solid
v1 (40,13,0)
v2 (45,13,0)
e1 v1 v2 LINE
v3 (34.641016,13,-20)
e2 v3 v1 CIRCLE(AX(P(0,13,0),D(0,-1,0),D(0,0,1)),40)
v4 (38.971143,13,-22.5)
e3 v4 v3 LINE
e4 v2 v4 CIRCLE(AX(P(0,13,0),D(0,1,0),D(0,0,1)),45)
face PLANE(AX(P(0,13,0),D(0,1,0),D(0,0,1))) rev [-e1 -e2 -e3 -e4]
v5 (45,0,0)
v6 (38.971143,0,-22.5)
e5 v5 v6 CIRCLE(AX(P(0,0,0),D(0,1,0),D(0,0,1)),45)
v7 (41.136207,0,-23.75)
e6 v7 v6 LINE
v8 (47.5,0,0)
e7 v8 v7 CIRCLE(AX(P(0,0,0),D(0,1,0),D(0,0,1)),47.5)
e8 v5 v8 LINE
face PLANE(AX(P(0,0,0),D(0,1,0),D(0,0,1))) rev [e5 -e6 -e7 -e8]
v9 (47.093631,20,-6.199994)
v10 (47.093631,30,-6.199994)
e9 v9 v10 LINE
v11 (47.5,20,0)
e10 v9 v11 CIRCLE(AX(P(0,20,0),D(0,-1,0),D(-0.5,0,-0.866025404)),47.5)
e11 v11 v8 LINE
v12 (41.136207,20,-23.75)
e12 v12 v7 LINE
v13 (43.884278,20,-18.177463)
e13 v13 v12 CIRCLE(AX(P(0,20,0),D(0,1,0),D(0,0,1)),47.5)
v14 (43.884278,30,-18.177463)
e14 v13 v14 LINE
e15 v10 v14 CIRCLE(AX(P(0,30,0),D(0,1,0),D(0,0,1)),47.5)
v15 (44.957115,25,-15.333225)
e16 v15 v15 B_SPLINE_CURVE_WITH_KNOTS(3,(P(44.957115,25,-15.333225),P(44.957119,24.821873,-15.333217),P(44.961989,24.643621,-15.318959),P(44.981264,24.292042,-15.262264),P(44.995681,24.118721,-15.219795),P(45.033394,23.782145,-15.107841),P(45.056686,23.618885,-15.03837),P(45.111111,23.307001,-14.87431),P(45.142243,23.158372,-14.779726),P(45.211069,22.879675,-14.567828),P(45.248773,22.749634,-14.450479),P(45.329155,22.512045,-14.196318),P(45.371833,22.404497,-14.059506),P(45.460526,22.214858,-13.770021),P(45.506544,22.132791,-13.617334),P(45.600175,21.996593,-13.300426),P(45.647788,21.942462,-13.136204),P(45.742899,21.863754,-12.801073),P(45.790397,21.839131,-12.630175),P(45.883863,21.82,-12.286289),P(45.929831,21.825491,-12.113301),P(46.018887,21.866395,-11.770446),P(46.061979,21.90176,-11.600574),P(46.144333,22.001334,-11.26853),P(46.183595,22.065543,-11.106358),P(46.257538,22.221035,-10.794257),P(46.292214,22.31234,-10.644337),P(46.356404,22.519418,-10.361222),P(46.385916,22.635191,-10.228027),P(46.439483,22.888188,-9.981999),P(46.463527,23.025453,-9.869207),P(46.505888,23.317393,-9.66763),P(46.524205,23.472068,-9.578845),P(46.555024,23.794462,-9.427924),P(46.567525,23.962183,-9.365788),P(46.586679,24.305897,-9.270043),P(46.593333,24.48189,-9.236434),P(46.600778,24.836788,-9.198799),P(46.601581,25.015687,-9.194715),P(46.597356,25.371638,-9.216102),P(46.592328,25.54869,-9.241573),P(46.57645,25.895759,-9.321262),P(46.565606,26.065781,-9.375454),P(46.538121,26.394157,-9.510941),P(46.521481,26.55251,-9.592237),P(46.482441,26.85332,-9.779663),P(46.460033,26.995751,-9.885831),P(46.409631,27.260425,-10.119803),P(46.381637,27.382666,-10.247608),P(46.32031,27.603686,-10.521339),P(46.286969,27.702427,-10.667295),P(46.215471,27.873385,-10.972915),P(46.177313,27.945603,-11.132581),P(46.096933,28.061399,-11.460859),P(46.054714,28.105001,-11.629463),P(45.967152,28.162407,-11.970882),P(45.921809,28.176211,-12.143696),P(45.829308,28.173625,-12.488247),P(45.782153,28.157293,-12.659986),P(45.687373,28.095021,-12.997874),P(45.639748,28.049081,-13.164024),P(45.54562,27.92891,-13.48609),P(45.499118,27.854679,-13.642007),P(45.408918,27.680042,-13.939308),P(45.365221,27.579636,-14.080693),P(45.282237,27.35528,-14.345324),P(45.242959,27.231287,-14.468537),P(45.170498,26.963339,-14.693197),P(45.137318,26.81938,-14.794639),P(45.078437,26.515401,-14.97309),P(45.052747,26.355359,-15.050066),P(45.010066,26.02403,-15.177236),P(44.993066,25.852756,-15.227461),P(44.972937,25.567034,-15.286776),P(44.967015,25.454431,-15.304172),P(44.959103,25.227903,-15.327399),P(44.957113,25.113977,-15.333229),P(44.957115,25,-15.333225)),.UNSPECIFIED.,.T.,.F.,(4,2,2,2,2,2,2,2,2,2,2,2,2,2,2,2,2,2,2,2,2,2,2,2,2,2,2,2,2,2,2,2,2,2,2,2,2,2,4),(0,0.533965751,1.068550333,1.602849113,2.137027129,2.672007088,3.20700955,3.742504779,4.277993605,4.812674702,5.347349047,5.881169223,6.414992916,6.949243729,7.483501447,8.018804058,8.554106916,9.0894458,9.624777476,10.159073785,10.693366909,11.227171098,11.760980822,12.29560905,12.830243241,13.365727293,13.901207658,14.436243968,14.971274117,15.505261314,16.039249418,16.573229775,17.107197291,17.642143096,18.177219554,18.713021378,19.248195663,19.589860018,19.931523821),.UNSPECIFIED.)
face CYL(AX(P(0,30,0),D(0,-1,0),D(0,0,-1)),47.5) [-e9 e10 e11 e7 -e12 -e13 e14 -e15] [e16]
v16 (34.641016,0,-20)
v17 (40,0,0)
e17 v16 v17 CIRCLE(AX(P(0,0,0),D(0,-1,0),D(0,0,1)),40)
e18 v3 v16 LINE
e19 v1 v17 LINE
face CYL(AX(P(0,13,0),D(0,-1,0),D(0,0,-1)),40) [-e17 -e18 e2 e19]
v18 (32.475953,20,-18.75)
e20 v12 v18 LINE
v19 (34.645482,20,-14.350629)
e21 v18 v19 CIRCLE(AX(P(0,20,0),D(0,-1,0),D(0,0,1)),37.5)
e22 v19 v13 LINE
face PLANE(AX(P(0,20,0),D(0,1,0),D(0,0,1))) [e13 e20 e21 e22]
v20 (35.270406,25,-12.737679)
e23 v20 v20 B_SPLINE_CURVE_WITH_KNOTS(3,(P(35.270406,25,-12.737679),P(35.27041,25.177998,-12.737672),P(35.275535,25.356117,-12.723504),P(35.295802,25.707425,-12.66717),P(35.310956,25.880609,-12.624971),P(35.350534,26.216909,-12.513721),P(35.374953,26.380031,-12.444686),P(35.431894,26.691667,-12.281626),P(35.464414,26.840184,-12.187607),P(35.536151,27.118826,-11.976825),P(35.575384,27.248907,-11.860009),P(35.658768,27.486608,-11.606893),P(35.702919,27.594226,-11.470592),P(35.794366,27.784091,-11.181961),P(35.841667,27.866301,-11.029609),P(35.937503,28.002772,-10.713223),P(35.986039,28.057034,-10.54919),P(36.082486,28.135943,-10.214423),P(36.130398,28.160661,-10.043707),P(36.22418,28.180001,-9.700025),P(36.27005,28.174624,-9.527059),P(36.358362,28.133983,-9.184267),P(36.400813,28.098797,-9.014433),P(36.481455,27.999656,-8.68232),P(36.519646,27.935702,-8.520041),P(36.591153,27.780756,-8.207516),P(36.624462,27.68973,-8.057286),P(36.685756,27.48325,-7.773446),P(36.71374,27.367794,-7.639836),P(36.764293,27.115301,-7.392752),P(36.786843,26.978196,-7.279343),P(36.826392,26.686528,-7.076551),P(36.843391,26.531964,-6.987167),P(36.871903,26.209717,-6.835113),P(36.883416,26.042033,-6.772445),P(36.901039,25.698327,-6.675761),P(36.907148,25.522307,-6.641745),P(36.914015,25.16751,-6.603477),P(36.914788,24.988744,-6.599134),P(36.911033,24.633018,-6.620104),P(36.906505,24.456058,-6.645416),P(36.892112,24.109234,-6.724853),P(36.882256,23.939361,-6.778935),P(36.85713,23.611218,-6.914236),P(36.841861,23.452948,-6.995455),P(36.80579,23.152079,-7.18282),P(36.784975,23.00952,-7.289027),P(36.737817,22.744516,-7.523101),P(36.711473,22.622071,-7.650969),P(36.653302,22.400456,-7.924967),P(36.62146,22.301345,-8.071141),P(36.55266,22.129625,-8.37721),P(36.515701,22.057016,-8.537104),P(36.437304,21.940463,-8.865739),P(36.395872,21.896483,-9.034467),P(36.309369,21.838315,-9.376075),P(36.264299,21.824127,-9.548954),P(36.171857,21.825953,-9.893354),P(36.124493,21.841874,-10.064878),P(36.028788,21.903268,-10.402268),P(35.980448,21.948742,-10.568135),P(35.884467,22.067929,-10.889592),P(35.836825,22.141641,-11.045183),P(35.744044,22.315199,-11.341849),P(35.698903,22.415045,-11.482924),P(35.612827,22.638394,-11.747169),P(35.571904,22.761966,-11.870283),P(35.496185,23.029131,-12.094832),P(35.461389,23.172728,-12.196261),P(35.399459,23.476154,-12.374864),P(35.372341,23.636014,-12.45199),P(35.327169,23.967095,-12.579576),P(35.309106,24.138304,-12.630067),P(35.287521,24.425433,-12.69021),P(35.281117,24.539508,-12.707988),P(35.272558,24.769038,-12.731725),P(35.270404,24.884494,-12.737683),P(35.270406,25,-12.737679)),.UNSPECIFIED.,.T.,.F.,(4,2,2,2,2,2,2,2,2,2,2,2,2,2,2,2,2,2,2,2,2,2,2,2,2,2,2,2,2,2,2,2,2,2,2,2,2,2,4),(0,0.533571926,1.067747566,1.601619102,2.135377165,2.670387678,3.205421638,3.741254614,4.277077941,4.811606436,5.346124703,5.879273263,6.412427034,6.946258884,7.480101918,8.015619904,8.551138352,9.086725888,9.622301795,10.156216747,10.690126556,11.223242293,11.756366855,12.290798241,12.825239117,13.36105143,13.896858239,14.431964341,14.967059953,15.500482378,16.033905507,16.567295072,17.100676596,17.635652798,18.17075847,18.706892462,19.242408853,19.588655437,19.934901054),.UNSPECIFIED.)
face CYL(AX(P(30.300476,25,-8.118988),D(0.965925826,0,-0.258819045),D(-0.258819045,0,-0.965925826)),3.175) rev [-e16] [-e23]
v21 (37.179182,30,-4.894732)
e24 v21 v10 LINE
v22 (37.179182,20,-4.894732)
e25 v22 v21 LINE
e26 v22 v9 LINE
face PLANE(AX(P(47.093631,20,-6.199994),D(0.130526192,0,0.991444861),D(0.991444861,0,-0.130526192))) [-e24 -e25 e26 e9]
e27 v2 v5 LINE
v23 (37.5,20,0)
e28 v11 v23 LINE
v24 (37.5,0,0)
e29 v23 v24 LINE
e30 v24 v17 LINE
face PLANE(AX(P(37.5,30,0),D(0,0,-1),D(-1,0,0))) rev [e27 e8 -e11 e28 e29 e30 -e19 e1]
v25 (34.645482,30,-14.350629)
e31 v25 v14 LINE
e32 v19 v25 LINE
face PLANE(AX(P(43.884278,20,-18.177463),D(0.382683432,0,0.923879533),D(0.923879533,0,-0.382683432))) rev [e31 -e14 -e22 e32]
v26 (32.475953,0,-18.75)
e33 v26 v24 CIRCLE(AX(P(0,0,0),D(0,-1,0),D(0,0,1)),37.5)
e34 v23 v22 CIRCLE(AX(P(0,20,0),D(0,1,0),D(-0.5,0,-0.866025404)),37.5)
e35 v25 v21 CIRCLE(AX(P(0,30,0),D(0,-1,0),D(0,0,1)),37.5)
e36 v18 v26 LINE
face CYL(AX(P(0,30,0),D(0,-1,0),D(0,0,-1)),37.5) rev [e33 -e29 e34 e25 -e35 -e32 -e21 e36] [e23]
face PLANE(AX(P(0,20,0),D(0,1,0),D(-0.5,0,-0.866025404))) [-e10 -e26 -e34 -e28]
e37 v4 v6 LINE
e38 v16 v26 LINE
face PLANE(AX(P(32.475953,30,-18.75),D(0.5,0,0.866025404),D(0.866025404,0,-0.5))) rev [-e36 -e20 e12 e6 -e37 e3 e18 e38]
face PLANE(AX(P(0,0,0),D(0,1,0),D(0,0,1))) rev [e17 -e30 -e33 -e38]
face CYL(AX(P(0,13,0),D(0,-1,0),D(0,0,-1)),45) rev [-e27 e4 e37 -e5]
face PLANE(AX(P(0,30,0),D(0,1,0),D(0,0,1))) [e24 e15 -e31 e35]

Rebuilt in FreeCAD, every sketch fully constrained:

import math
import FreeCAD as App
import Part
import Sketcher
Q = App.Units.Quantity

doc = App.newDocument("Part")
body = doc.addObject("PartDesign::Body", "Body")

# Sketch on XZ plane
sketch1 = body.newObject("Sketcher::SketchObject", "Sketch")
sketch1.AttachmentSupport = (doc.getObject("XZ_Plane"), [""])
sketch1.MapMode = "FlatFace"
sketch1.addGeometry([
    Part.LineSegment(App.Vector(38, 0, 0), App.Vector(48, 0, 0)),
    Part.ArcOfCircle(Part.Circle(App.Vector(0, 0, 0), App.Vector(0, 0, 1), 47), math.radians(-30), math.radians(0)),
    Part.LineSegment(App.Vector(41, -24, 0), App.Vector(32, -19, 0)),
    Part.ArcOfCircle(Part.Circle(App.Vector(0, 0, 0), App.Vector(0, 0, 1), 37), math.radians(-30), math.radians(0)),
], False)
sketch1.addConstraint([
    Sketcher.Constraint("Coincident", 0, 2, 1, 2),
    Sketcher.Constraint("Coincident", 1, 1, 2, 1),
    Sketcher.Constraint("Coincident", 2, 2, 3, 1),
    Sketcher.Constraint("Coincident", 3, 2, 0, 1),
    Sketcher.Constraint("Horizontal", 0),
    Sketcher.Constraint("Coincident", 1, 3, -1, 1),
    Sketcher.Constraint("Coincident", 3, 3, -1, 1),
    Sketcher.Constraint("PointOnObject", 0, 2, -1),
    Sketcher.Constraint("Radius", 1, Q("47.5 mm")),
    Sketcher.Constraint("Radius", 3, Q("37.5 mm")),
    Sketcher.Constraint("Angle", 2, Q("150 deg")),
    Sketcher.Constraint("DistanceY", 1, 1, -1, 1, Q("23.75 mm")),
])
pad1 = body.newObject("PartDesign::Pad", "Pad")
pad1.Profile = sketch1
pad1.Length = 30
pad1.Reversed = True

# Sketch on XZ plane
sketch2 = body.newObject("Sketcher::SketchObject", "Sketch001")
sketch2.AttachmentSupport = (doc.getObject("XZ_Plane"), [""])
sketch2.MapMode = "FlatFace"
sketch2.addGeometry([
    Part.LineSegment(App.Vector(39, -22, 0), App.Vector(35, -20, 0)),
    Part.ArcOfCircle(Part.Circle(App.Vector(0, 0, 0), App.Vector(0, 0, 1), 40), math.radians(-30), math.radians(0)),
    Part.LineSegment(App.Vector(40, 0, 0), App.Vector(45, 0, 0)),
    Part.ArcOfCircle(Part.Circle(App.Vector(0, 0, 0), App.Vector(0, 0, 1), 45), math.radians(-30), math.radians(0)),
], False)
sketch2.addConstraint([
    Sketcher.Constraint("Coincident", 0, 2, 1, 1),
    Sketcher.Constraint("Coincident", 1, 2, 2, 1),
    Sketcher.Constraint("Coincident", 2, 2, 3, 2),
    Sketcher.Constraint("Coincident", 3, 1, 0, 1),
    Sketcher.Constraint("Horizontal", 2),
    Sketcher.Constraint("Coincident", 1, 3, -1, 1),
    Sketcher.Constraint("Coincident", 3, 3, -1, 1),
    Sketcher.Constraint("PointOnObject", 1, 2, -1),
    Sketcher.Constraint("Radius", 1, Q("40 mm")),
    Sketcher.Constraint("Radius", 3, Q("45 mm")),
    Sketcher.Constraint("Angle", 0, Q("150 deg")),
    Sketcher.Constraint("DistanceY", 0, 2, -1, 1, Q("20 mm")),
])
pocket1 = body.newObject("PartDesign::Pocket", "Pocket")
pocket1.Profile = sketch2
pocket1.Length = 13

# Sketch on XZ plane
sketch3 = body.newObject("Sketcher::SketchObject", "Sketch002")
sketch3.AttachmentSupport = (doc.getObject("XZ_Plane"), [""])
sketch3.MapMode = "FlatFace"
sketch3.AttachmentOffset = App.Placement(App.Vector(0, 0, -20), App.Rotation())
sketch3.addGeometry([
    Part.LineSegment(App.Vector(41.1, -23.8, 0), App.Vector(32.5, -18.8, 0)),
    Part.ArcOfCircle(Part.Circle(App.Vector(0, 0, 0), App.Vector(0, 0, 1), 37.5), math.radians(-30), math.radians(-22.5)),
    Part.LineSegment(App.Vector(34.6, -14.4, 0), App.Vector(43.9, -18.2, 0)),
    Part.ArcOfCircle(Part.Circle(App.Vector(0, 0, 0), App.Vector(0, 0, 1), 47.5), math.radians(-30), math.radians(-22.5)),
], False)
sketch3.addConstraint([
    Sketcher.Constraint("Coincident", 0, 2, 1, 1),
    Sketcher.Constraint("Coincident", 1, 2, 2, 1),
    Sketcher.Constraint("Coincident", 2, 2, 3, 2),
    Sketcher.Constraint("Coincident", 3, 1, 0, 1),
    Sketcher.Constraint("Coincident", 1, 3, -1, 1),
    Sketcher.Constraint("Coincident", 3, 3, -1, 1),
    Sketcher.Constraint("Radius", 1, Q("37.5 mm")),
    Sketcher.Constraint("Radius", 3, Q("47.5 mm")),
    Sketcher.Constraint("Angle", 0, Q("150 deg")),
    Sketcher.Constraint("Angle", 2, Q("-22.5 deg")),
    Sketcher.Constraint("DistanceY", 0, 2, -1, 1, Q("18.75 mm")),
    Sketcher.Constraint("DistanceY", 1, 2, -1, 1, Q("14.350629 mm")),
])
pocket2 = body.newObject("PartDesign::Pocket", "Pocket001")
pocket2.Profile = sketch3
pocket2.Length = 10
doc.recompute()

datumplane = body.newObject("PartDesign::Plane", "DatumPlane")
datumplane.Placement = App.Placement(App.Vector(0, 0, 0), App.Rotation(App.Vector(-0.965925826, 0, 0.258819045), App.Vector(0, -1, 0), App.Vector(0.258819045, 0, 0.965925826), "ZXY"))
mirrored = body.newObject("PartDesign::Mirrored", "Mirrored")
mirrored.Originals = [pocket2]
mirrored.MirrorPlane = (datumplane, [""])
body.Tip = mirrored

# Sketch on an angled plane
sketch4 = body.newObject("Sketcher::SketchObject", "Sketch003")
sketch4.Placement = App.Placement(App.Vector(45.881477, 0, -12.293905), App.Rotation(App.Vector(-0.258819045, 0, -0.965925826), App.Vector(0, 0.999999999, 0), App.Vector(0.965925826, 0, -0.258819045), "ZXY"))
sketch4.addGeometry(Part.Circle(App.Vector(0, 25, 0), App.Vector(0, 0, 1), 3.2), False)
sketch4.addConstraint([
    Sketcher.Constraint("PointOnObject", 0, 3, -2),
    Sketcher.Constraint("Diameter", 0, Q("6.35 mm")),
    Sketcher.Constraint("DistanceY", -1, 1, 0, 3, Q("25 mm")),
])
pocket3 = body.newObject("PartDesign::Pocket", "Pocket002")
pocket3.Profile = sketch4
pocket3.Type = "ThroughAll"

doc.recompute()
